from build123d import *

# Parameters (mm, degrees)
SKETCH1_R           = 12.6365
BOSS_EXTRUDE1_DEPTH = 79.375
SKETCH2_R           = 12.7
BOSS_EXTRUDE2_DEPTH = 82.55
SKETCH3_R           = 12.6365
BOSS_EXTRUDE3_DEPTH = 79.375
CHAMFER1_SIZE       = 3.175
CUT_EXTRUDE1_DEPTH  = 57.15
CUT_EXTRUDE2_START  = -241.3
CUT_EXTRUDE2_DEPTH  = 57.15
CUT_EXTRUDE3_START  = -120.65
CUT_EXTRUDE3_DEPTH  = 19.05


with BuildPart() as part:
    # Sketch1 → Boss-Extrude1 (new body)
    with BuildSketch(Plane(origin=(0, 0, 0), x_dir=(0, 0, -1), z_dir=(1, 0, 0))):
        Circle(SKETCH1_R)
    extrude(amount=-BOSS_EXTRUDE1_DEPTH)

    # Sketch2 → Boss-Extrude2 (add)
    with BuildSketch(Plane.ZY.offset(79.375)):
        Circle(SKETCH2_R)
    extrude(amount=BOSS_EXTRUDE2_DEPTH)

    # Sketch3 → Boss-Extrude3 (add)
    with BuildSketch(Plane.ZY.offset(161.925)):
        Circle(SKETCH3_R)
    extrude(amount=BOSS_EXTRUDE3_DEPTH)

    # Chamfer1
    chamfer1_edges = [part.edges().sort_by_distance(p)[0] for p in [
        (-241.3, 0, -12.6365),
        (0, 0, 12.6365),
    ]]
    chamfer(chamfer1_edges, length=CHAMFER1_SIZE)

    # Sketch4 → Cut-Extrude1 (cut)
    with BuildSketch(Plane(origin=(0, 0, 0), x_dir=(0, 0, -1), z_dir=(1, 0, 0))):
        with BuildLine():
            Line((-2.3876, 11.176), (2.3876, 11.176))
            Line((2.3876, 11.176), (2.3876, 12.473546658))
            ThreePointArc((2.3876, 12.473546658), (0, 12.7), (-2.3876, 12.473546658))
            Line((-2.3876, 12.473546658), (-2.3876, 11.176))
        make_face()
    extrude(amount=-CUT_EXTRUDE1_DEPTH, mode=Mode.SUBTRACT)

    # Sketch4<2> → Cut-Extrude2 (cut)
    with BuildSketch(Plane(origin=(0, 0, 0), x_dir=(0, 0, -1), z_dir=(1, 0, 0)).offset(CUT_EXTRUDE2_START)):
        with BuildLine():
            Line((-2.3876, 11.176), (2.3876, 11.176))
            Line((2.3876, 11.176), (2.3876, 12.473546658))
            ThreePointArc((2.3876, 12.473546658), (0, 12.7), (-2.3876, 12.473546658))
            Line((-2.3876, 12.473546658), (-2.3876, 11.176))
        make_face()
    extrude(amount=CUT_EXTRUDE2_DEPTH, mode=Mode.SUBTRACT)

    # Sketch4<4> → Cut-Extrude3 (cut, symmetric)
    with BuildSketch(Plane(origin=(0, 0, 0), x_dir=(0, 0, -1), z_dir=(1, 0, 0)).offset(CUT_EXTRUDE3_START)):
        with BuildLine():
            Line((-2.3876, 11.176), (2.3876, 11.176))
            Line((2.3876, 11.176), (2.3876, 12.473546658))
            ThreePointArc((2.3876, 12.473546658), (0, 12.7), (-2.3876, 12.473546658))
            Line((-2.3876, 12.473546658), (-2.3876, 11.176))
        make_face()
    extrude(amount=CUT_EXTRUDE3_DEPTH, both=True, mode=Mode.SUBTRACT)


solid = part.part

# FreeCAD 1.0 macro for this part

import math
import FreeCAD as App
import Part
import Sketcher
Q = App.Units.Quantity


def edges_at(feature, points):
    """Names of the edges that pass closest to the given points."""
    edges = feature.Shape.Edges
    near = lambda p: min(range(len(edges)), key=lambda i: edges[i].distToShape(Part.Vertex(*p))[0])
    return sorted({f"Edge{near(p) + 1}" for p in points})

doc = App.newDocument("Part")
body = doc.addObject("PartDesign::Body", "Body")

# Sketch on YZ plane
sketch1 = doc.addObject("Sketcher::SketchObject", "Sketch")
body.addObject(sketch1)
sketch1.AttachmentSupport = (doc.YZ_Plane, [""])
sketch1.MapMode = "FlatFace"
sketch1.addGeometry(Part.Circle(App.Vector(0, 0, 0), App.Vector(0, 0, 1), 12.6365), False)
sketch1.addConstraint(Sketcher.Constraint("Coincident", 0, 3, -1, 1))
sketch1.addConstraint(Sketcher.Constraint("Diameter", 0, Q("0.995 in")))
pad1 = doc.addObject("PartDesign::Pad", "Pad")
body.addObject(pad1)
pad1.Profile = sketch1
pad1.Length = Q("3.125 in")
pad1.Reversed = True

# Sketch on YZ plane
sketch2 = doc.addObject("Sketcher::SketchObject", "Sketch001")
body.addObject(sketch2)
sketch2.AttachmentSupport = (doc.YZ_Plane, [""])
sketch2.MapMode = "FlatFace"
sketch2.AttachmentOffset = App.Placement(App.Vector(0, 0, -3.125 * 25.4), App.Rotation())
sketch2.addGeometry(Part.Circle(App.Vector(0, 0, 0), App.Vector(0, 0, 1), 12.7), False)
sketch2.addConstraint(Sketcher.Constraint("Coincident", 0, 3, -1, 1))
sketch2.addConstraint(Sketcher.Constraint("Diameter", 0, Q("1 in")))
pad2 = doc.addObject("PartDesign::Pad", "Pad001")
body.addObject(pad2)
pad2.Profile = sketch2
pad2.Length = Q("3.25 in")
pad2.Reversed = True

# Sketch on YZ plane
sketch3 = doc.addObject("Sketcher::SketchObject", "Sketch002")
body.addObject(sketch3)
sketch3.AttachmentSupport = (doc.YZ_Plane, [""])
sketch3.MapMode = "FlatFace"
sketch3.AttachmentOffset = App.Placement(App.Vector(0, 0, -6.375 * 25.4), App.Rotation())
sketch3.addGeometry(Part.Circle(App.Vector(0, 0, 0), App.Vector(0, 0, 1), 12.6365), False)
sketch3.addConstraint(Sketcher.Constraint("Coincident", 0, 3, -1, 1))
sketch3.addConstraint(Sketcher.Constraint("Diameter", 0, Q("0.995 in")))
pad3 = doc.addObject("PartDesign::Pad", "Pad002")
body.addObject(pad3)
pad3.Profile = sketch3
pad3.Length = Q("3.125 in")
pad3.Reversed = True
doc.recompute()

chamfer = doc.addObject("PartDesign::Chamfer", "Chamfer")
body.addObject(chamfer)
chamfer.Base = (pad3, edges_at(pad3, [(-241.3, 0, -12.636), (0, 0, 12.636)]))
chamfer.Size = Q("0.125 in")

# Sketch on YZ plane
sketch4 = doc.addObject("Sketcher::SketchObject", "Sketch003")
body.addObject(sketch4)
sketch4.AttachmentSupport = (doc.YZ_Plane, [""])
sketch4.MapMode = "FlatFace"
sketch4.addGeometry(Part.LineSegment(App.Vector(11.176, 2.3876, 0), App.Vector(11.176, -2.3876, 0)), False)
sketch4.addGeometry(Part.LineSegment(App.Vector(11.176, -2.3876, 0), App.Vector(12.473547, -2.3876, 0)), False)
sketch4.addGeometry(Part.ArcOfCircle(Part.Circle(App.Vector(0, 0, 0), App.Vector(0, 0, 1), 12.7), math.radians(-10.836089), math.radians(10.836089)), False)
sketch4.addGeometry(Part.LineSegment(App.Vector(12.473547, 2.3876, 0), App.Vector(11.176, 2.3876, 0)), False)
sketch4.addConstraint(Sketcher.Constraint("Coincident", 0, 2, 1, 1))
sketch4.addConstraint(Sketcher.Constraint("Coincident", 1, 2, 2, 1))
sketch4.addConstraint(Sketcher.Constraint("Coincident", 2, 2, 3, 1))
sketch4.addConstraint(Sketcher.Constraint("Coincident", 3, 2, 0, 1))
sketch4.addConstraint(Sketcher.Constraint("Vertical", 0))
sketch4.addConstraint(Sketcher.Constraint("Horizontal", 1))
sketch4.addConstraint(Sketcher.Constraint("Horizontal", 3))
sketch4.addConstraint(Sketcher.Constraint("Coincident", 2, 3, -1, 1))
sketch4.addConstraint(Sketcher.Constraint("Vertical", 1, 2, 2, 2))
sketch4.addConstraint(Sketcher.Constraint("Radius", 2, Q("0.5 in")))
sketch4.addConstraint(Sketcher.Constraint("DistanceY", 0, 2, 0, 1, Q("0.188 in")))
sketch4.addConstraint(Sketcher.Constraint("DistanceX", -1, 1, 0, 2, Q("0.44 in")))
pocket1 = doc.addObject("PartDesign::Pocket", "Pocket")
body.addObject(pocket1)
pocket1.Profile = sketch4
pocket1.Length = Q("2.25 in")

# Sketch on YZ plane
sketch5 = doc.addObject("Sketcher::SketchObject", "Sketch004")
body.addObject(sketch5)
sketch5.AttachmentSupport = (doc.YZ_Plane, [""])
sketch5.MapMode = "FlatFace"
sketch5.AttachmentOffset = App.Placement(App.Vector(0, 0, -9.5 * 25.4), App.Rotation())
sketch5.addGeometry(Part.LineSegment(App.Vector(11.176, 2.3876, 0), App.Vector(11.176, -2.3876, 0)), False)
sketch5.addGeometry(Part.LineSegment(App.Vector(11.176, -2.3876, 0), App.Vector(12.473547, -2.3876, 0)), False)
sketch5.addGeometry(Part.ArcOfCircle(Part.Circle(App.Vector(0, 0, 0), App.Vector(0, 0, 1), 12.7), math.radians(-10.836089), math.radians(10.836089)), False)
sketch5.addGeometry(Part.LineSegment(App.Vector(12.473547, 2.3876, 0), App.Vector(11.176, 2.3876, 0)), False)
sketch5.addConstraint(Sketcher.Constraint("Coincident", 0, 2, 1, 1))
sketch5.addConstraint(Sketcher.Constraint("Coincident", 1, 2, 2, 1))
sketch5.addConstraint(Sketcher.Constraint("Coincident", 2, 2, 3, 1))
sketch5.addConstraint(Sketcher.Constraint("Coincident", 3, 2, 0, 1))
sketch5.addConstraint(Sketcher.Constraint("Vertical", 0))
sketch5.addConstraint(Sketcher.Constraint("Horizontal", 1))
sketch5.addConstraint(Sketcher.Constraint("Horizontal", 3))
sketch5.addConstraint(Sketcher.Constraint("Coincident", 2, 3, -1, 1))
sketch5.addConstraint(Sketcher.Constraint("Vertical", 1, 2, 2, 2))
sketch5.addConstraint(Sketcher.Constraint("Radius", 2, Q("0.5 in")))
sketch5.addConstraint(Sketcher.Constraint("DistanceY", 0, 2, 0, 1, Q("0.188 in")))
sketch5.addConstraint(Sketcher.Constraint("DistanceX", -1, 1, 0, 2, Q("0.44 in")))
pocket2 = doc.addObject("PartDesign::Pocket", "Pocket001")
body.addObject(pocket2)
pocket2.Profile = sketch5
pocket2.Length = Q("2.25 in")
pocket2.Reversed = True

# Sketch on YZ plane
sketch6 = doc.addObject("Sketcher::SketchObject", "Sketch005")
body.addObject(sketch6)
sketch6.AttachmentSupport = (doc.YZ_Plane, [""])
sketch6.MapMode = "FlatFace"
sketch6.AttachmentOffset = App.Placement(App.Vector(0, 0, -4.75 * 25.4), App.Rotation())
sketch6.addGeometry(Part.LineSegment(App.Vector(11.176, 2.3876, 0), App.Vector(11.176, -2.3876, 0)), False)
sketch6.addGeometry(Part.LineSegment(App.Vector(11.176, -2.3876, 0), App.Vector(12.473547, -2.3876, 0)), False)
sketch6.addGeometry(Part.ArcOfCircle(Part.Circle(App.Vector(0, 0, 0), App.Vector(0, 0, 1), 12.7), math.radians(-10.836089), math.radians(10.836089)), False)
sketch6.addGeometry(Part.LineSegment(App.Vector(12.473547, 2.3876, 0), App.Vector(11.176, 2.3876, 0)), False)
sketch6.addConstraint(Sketcher.Constraint("Coincident", 0, 2, 1, 1))
sketch6.addConstraint(Sketcher.Constraint("Coincident", 1, 2, 2, 1))
sketch6.addConstraint(Sketcher.Constraint("Coincident", 2, 2, 3, 1))
sketch6.addConstraint(Sketcher.Constraint("Coincident", 3, 2, 0, 1))
sketch6.addConstraint(Sketcher.Constraint("Vertical", 0))
sketch6.addConstraint(Sketcher.Constraint("Horizontal", 1))
sketch6.addConstraint(Sketcher.Constraint("Horizontal", 3))
sketch6.addConstraint(Sketcher.Constraint("Coincident", 2, 3, -1, 1))
sketch6.addConstraint(Sketcher.Constraint("Vertical", 1, 2, 2, 2))
sketch6.addConstraint(Sketcher.Constraint("Radius", 2, Q("0.5 in")))
sketch6.addConstraint(Sketcher.Constraint("DistanceY", 0, 2, 0, 1, Q("0.188 in")))
sketch6.addConstraint(Sketcher.Constraint("DistanceX", -1, 1, 0, 2, Q("0.44 in")))
pocket3 = doc.addObject("PartDesign::Pocket", "Pocket002")
body.addObject(pocket3)
pocket3.Profile = sketch6
pocket3.Length = Q("1.5 in")
pocket3.Midplane = True

doc.recompute()
